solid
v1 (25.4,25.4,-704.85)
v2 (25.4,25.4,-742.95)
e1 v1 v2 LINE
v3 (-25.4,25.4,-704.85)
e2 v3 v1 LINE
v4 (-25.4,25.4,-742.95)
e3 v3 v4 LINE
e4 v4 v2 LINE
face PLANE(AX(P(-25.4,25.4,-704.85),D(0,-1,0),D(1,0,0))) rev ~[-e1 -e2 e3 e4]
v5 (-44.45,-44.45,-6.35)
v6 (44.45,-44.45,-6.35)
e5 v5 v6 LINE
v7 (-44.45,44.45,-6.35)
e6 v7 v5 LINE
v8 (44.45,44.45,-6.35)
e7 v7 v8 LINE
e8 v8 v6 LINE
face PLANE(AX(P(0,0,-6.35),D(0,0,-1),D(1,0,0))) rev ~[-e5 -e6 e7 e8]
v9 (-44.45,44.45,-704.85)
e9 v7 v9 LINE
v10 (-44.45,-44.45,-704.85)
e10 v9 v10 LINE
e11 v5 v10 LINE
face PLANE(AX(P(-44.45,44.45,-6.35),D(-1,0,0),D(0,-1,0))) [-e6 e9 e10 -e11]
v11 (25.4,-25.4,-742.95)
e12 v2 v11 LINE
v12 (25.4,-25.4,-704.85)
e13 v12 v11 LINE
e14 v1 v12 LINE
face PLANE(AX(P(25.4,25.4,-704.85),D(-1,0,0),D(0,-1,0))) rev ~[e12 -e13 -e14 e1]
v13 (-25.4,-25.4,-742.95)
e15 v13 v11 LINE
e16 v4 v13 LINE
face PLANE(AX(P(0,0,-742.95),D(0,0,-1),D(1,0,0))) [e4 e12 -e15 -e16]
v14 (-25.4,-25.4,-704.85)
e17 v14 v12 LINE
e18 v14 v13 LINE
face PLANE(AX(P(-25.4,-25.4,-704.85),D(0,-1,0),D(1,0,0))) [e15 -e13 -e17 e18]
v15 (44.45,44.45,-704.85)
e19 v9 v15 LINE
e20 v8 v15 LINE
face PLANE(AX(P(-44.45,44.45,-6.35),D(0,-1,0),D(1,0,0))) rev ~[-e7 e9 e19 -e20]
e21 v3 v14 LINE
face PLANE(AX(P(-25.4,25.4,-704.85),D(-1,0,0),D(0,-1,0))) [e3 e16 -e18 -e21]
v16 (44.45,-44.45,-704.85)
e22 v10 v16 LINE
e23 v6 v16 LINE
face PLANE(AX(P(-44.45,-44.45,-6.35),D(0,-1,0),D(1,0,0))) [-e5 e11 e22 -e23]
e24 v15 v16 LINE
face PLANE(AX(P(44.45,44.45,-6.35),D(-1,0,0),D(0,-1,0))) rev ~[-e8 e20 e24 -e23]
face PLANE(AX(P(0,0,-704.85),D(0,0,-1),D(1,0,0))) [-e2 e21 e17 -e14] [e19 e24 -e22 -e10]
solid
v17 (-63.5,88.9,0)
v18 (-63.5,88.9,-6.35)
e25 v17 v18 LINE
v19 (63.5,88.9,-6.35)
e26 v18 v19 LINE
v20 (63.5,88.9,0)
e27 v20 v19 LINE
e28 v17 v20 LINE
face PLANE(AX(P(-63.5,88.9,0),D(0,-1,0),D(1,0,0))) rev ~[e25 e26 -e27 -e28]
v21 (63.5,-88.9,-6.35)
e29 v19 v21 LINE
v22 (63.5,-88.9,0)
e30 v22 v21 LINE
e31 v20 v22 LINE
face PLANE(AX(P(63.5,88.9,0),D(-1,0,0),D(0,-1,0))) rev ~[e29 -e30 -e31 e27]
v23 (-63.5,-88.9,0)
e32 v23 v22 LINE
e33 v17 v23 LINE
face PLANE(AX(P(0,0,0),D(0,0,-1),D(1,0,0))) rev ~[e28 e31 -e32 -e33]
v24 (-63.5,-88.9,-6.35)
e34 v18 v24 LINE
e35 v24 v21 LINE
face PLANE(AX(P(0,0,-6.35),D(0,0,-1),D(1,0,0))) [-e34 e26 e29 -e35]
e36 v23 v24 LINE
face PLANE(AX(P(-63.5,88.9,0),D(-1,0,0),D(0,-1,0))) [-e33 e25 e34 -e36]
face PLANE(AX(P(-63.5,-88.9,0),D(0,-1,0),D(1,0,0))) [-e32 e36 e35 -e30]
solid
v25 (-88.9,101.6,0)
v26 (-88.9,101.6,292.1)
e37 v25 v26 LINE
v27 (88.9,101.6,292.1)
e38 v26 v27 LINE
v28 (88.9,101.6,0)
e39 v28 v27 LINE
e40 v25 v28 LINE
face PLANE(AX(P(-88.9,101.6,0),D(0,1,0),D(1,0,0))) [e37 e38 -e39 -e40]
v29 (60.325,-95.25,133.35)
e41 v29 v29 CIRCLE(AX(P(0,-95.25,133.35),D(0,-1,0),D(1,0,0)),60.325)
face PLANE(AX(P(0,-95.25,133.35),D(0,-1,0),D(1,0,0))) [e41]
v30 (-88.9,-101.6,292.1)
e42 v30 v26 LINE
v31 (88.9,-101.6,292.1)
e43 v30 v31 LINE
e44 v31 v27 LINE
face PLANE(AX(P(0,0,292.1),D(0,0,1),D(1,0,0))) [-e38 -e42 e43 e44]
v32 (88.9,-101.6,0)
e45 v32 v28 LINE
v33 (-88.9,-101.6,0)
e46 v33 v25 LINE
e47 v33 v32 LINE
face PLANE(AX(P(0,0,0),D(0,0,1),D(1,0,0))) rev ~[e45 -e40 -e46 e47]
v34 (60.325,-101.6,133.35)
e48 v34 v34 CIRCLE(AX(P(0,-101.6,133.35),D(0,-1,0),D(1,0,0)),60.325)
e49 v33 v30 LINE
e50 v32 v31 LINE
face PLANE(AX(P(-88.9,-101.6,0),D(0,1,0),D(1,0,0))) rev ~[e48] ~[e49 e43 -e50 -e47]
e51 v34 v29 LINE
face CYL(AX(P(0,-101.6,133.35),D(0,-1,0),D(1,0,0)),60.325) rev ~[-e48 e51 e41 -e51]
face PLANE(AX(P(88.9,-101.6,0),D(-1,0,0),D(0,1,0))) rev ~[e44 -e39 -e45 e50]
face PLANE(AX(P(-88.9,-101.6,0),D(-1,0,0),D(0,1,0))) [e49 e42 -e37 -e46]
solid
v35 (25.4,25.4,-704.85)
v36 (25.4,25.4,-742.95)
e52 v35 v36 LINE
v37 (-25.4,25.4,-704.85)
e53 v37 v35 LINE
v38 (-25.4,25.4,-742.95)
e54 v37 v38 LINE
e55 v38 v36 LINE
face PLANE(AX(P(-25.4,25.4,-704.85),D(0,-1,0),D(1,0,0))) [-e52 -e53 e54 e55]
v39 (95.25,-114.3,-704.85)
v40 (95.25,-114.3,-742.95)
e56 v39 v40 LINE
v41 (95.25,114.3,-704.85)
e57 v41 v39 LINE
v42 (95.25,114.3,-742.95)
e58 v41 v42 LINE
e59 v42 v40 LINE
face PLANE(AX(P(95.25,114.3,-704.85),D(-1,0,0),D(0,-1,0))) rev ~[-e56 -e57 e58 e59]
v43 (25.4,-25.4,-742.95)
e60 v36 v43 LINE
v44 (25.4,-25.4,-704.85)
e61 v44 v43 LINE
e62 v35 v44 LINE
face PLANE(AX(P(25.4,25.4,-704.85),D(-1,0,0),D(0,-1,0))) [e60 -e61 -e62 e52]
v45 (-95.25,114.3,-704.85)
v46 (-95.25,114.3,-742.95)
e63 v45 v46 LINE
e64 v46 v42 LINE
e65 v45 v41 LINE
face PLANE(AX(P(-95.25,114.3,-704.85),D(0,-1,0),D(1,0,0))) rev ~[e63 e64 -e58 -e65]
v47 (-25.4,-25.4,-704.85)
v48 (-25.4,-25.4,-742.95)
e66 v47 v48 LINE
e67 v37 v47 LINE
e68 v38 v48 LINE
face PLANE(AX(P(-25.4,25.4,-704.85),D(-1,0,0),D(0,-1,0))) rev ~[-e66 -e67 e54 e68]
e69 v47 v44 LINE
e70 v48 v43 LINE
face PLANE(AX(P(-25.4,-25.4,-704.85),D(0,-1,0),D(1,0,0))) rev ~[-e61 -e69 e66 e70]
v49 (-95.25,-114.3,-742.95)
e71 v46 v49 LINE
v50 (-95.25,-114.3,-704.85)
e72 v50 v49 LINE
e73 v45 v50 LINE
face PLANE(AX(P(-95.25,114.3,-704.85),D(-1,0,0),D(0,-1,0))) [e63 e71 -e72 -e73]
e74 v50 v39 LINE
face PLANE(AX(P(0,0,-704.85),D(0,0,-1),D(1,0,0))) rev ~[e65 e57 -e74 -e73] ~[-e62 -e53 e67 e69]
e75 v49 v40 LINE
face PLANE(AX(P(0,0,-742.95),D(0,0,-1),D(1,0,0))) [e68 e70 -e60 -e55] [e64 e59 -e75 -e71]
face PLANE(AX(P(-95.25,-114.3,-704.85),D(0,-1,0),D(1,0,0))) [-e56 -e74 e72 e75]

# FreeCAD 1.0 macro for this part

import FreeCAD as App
import Part
import Sketcher
from FreeCAD import Vector
Q = App.Units.Quantity


def add_polygon(sketch, points):
    """Adds a closed chain of lines whose ends are joined by coincident constraints."""
    first, n = sketch.GeometryCount, len(points)
    for a, b in zip(points, points[1:] + points[:1]):
        sketch.addGeometry(Part.LineSegment(App.Vector(*a, 0), App.Vector(*b, 0)), False)
    for i in range(n):
        sketch.addConstraint(Sketcher.Constraint("Coincident", first + i, 2, first + (i + 1) % n, 1))

doc = App.newDocument("Part")
body = doc.addObject("PartDesign::Body", "Body")

# Sketch on XY plane
sketch1 = body.newObject("Sketcher::SketchObject", "Sketch")
sketch1.AttachmentSupport = (doc.getObject("XY_Plane"), [""])
sketch1.MapMode = "FlatFace"
add_polygon(sketch1, [(-89, 102), (-89, -102), (89, -102), (89, 102)])  # lines 0-3
sketch1.addConstraint([
    Sketcher.Constraint("Vertical", 0),
    Sketcher.Constraint("Horizontal", 1),
    Sketcher.Constraint("Vertical", 2),
    Sketcher.Constraint("Horizontal", 3),
    Sketcher.Constraint("Symmetric", 0, 2, 2, 2, -1, 1),
    Sketcher.Constraint("DistanceX", 1, 1, 1, 2, Q("7 in")),
    Sketcher.Constraint("DistanceY", 0, 2, 0, 1, Q("8 in")),
])
pad1 = body.newObject("PartDesign::Pad", "Pad")
pad1.Profile = sketch1
pad1.Length = Q("11.5 in")

# Sketch on XZ plane
sketch2 = body.newObject("Sketcher::SketchObject", "Sketch001")
sketch2.AttachmentSupport = (doc.getObject("XZ_Plane"), [""])
sketch2.MapMode = "FlatFace"
sketch2.AttachmentOffset = App.Placement(Vector(0, 0, 4 * 25.4), App.Rotation())
sketch2.addGeometry(Part.Circle(Vector(0, 133, 0), Vector(0, 0, 1), 60), False)
sketch2.addConstraint([
    Sketcher.Constraint("PointOnObject", 0, 3, -2),
    Sketcher.Constraint("Diameter", 0, Q("4.75 in")),
    Sketcher.Constraint("DistanceY", -1, 1, 0, 3, Q("5.25 in")),
])
pocket1 = body.newObject("PartDesign::Pocket", "Pocket")
pocket1.Profile = sketch2
pocket1.Length = Q("0.25 in")
body2 = doc.addObject("PartDesign::Body", "Body001")

# Sketch on XY plane
sketch3 = body2.newObject("Sketcher::SketchObject", "Sketch002")
sketch3.AttachmentSupport = (doc.getObject("XY_Plane001"), [""])
sketch3.MapMode = "FlatFace"
add_polygon(sketch3, [(-64, -89), (-64, 89), (64, 89), (64, -89)])  # lines 0-3
sketch3.addConstraint([
    Sketcher.Constraint("Vertical", 0),
    Sketcher.Constraint("Horizontal", 1),
    Sketcher.Constraint("Vertical", 2),
    Sketcher.Constraint("Horizontal", 3),
    Sketcher.Constraint("Symmetric", 0, 2, 2, 2, -1, 1),
    Sketcher.Constraint("DistanceX", 1, 1, 1, 2, Q("5 in")),
    Sketcher.Constraint("DistanceY", 0, 1, 0, 2, Q("7 in")),
])
pad2 = body2.newObject("PartDesign::Pad", "Pad001")
pad2.Profile = sketch3
pad2.Length = Q("0.25 in")
pad2.Reversed = True
body3 = doc.addObject("PartDesign::Body", "Body002")

# Sketch on XY plane
sketch4 = body3.newObject("Sketcher::SketchObject", "Sketch003")
sketch4.AttachmentSupport = (doc.getObject("XY_Plane002"), [""])
sketch4.MapMode = "FlatFace"
sketch4.AttachmentOffset = App.Placement(Vector(0, 0, -0.25 * 25.4), App.Rotation())
add_polygon(sketch4, [(-44, -44), (-44, 44), (44, 44), (44, -44)])  # lines 0-3
sketch4.addConstraint([
    Sketcher.Constraint("Vertical", 0),
    Sketcher.Constraint("Horizontal", 1),
    Sketcher.Constraint("Vertical", 2),
    Sketcher.Constraint("Horizontal", 3),
    Sketcher.Constraint("Symmetric", 0, 2, 2, 2, -1, 1),
    Sketcher.Constraint("Equal", 3, 0),
    Sketcher.Constraint("DistanceX", 1, 1, 1, 2, Q("3.5 in")),
])
pad3 = body3.newObject("PartDesign::Pad", "Pad002")
pad3.Profile = sketch4
pad3.Length = Q("27.5 in")
pad3.Reversed = True

# Sketch on XY plane
sketch5 = body3.newObject("Sketcher::SketchObject", "Sketch004")
sketch5.AttachmentSupport = (doc.getObject("XY_Plane002"), [""])
sketch5.MapMode = "FlatFace"
sketch5.AttachmentOffset = App.Placement(Vector(0, 0, -27.75 * 25.4), App.Rotation())
add_polygon(sketch5, [(-25, -25), (-25, 25), (25, 25), (25, -25)])  # lines 0-3
sketch5.addConstraint([
    Sketcher.Constraint("Vertical", 0),
    Sketcher.Constraint("Horizontal", 1),
    Sketcher.Constraint("Vertical", 2),
    Sketcher.Constraint("Horizontal", 3),
    Sketcher.Constraint("Symmetric", 0, 2, 2, 2, -1, 1),
    Sketcher.Constraint("Equal", 3, 0),
    Sketcher.Constraint("DistanceX", 1, 1, 1, 2, Q("2 in")),
])
pad4 = body3.newObject("PartDesign::Pad", "Pad003")
pad4.Profile = sketch5
pad4.Length = Q("1.5 in")
pad4.Reversed = True
body4 = doc.addObject("PartDesign::Body", "Body003")

# Sketch on XY plane
sketch6 = body4.newObject("Sketcher::SketchObject", "Sketch005")
sketch6.AttachmentSupport = (doc.getObject("XY_Plane003"), [""])
sketch6.MapMode = "FlatFace"
sketch6.AttachmentOffset = App.Placement(Vector(0, 0, -27.75 * 25.4), App.Rotation())
add_polygon(sketch6, [(-95, -114), (-95, 114), (95, 114), (95, -114)])  # lines 0-3
add_polygon(sketch6, [(25, 25), (-25, 25), (-25, -25), (25, -25)])  # lines 4-7
sketch6.addConstraint([
    Sketcher.Constraint("Vertical", 0),
    Sketcher.Constraint("Horizontal", 1),
    Sketcher.Constraint("Vertical", 2),
    Sketcher.Constraint("Horizontal", 3),
    Sketcher.Constraint("Horizontal", 4),
    Sketcher.Constraint("Vertical", 5),
    Sketcher.Constraint("Horizontal", 6),
    Sketcher.Constraint("Vertical", 7),
    Sketcher.Constraint("Symmetric", 0, 2, 2, 2, -1, 1),
    Sketcher.Constraint("Symmetric", 4, 2, 6, 2, -1, 1),
    Sketcher.Constraint("Equal", 6, 5),
    Sketcher.Constraint("DistanceX", 4, 2, 4, 1, Q("2 in")),
    Sketcher.Constraint("DistanceY", 0, 1, 0, 2, Q("9 in")),
    Sketcher.Constraint("DistanceX", 1, 1, 1, 2, Q("7.5 in")),
])
pad5 = body4.newObject("PartDesign::Pad", "Pad004")
pad5.Profile = sketch6
pad5.Length = Q("1.5 in")
pad5.Reversed = True

doc.recompute()
